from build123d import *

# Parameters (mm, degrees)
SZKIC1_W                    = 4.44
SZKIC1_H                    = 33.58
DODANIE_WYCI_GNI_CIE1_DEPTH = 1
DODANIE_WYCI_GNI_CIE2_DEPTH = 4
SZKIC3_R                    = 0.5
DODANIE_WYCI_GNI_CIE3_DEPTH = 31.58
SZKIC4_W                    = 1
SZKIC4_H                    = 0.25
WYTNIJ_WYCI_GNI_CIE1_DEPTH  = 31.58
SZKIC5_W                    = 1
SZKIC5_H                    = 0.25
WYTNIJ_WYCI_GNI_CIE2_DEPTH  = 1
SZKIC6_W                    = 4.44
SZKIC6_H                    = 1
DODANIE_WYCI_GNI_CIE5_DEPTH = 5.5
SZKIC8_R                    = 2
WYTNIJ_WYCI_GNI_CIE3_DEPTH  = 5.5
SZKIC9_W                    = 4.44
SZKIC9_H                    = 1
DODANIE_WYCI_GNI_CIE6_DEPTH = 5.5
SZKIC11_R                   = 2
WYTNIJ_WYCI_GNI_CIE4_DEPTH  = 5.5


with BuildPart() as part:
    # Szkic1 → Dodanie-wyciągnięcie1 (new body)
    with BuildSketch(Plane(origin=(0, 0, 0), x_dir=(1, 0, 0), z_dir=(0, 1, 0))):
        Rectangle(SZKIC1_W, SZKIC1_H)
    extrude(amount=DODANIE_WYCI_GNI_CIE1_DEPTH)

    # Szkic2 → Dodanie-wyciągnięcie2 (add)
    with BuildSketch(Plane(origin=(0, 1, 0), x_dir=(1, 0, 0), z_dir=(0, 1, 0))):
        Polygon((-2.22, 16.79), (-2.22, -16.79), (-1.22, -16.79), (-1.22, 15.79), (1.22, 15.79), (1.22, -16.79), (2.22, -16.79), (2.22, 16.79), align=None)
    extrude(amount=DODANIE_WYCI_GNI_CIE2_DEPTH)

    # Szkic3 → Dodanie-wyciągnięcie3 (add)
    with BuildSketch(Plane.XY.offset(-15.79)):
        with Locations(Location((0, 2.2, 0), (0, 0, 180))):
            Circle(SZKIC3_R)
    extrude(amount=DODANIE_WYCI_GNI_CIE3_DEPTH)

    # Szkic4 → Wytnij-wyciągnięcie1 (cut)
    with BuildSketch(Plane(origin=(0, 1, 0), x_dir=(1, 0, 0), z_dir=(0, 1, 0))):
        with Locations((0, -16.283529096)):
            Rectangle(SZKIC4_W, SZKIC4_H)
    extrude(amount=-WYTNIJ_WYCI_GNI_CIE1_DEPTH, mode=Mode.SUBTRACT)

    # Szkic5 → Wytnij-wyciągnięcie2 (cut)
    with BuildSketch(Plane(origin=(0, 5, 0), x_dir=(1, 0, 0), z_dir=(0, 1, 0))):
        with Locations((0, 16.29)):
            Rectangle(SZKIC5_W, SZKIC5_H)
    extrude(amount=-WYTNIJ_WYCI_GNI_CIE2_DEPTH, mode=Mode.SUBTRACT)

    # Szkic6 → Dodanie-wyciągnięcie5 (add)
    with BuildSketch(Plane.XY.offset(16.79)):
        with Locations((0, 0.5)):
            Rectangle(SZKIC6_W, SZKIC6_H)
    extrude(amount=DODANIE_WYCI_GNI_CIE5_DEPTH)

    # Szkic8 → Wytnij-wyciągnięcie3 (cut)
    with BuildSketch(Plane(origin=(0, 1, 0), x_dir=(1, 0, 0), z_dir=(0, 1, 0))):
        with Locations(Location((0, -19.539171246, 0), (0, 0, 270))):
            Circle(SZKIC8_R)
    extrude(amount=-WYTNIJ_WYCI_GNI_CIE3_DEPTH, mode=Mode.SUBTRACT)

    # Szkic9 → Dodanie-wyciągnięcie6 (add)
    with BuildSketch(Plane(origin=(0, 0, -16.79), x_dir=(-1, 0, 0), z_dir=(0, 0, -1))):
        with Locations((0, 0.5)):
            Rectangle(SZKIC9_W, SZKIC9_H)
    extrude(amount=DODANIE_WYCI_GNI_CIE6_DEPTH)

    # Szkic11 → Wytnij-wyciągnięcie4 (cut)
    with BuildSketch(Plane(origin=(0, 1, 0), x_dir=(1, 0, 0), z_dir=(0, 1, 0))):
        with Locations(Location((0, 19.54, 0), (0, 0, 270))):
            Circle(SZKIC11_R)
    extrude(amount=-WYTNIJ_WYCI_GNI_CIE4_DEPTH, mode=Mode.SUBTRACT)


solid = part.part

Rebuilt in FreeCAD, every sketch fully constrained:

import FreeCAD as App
import Part
import Sketcher
from FreeCAD import Vector
Q = App.Units.Quantity

doc = App.newDocument("Part")
body = doc.addObject("PartDesign::Body", "Body")

# Sketch on XZ plane
sketch1 = body.newObject("Sketcher::SketchObject", "Sketch")
sketch1.AttachmentSupport = (doc.getObject("XZ_Plane"), [""])
sketch1.MapMode = "FlatFace"
sketch1.addGeometry([
    Part.LineSegment(Vector(-2.2, -16.8, 0), Vector(-2.2, 16.8, 0)),
    Part.LineSegment(Vector(-2.2, 16.8, 0), Vector(2.2, 16.8, 0)),
    Part.LineSegment(Vector(2.2, 16.8, 0), Vector(2.2, -16.8, 0)),
    Part.LineSegment(Vector(2.2, -16.8, 0), Vector(-2.2, -16.8, 0)),
], False)
sketch1.addConstraint([
    Sketcher.Constraint("Coincident", 0, 2, 1, 1),
    Sketcher.Constraint("Coincident", 1, 2, 2, 1),
    Sketcher.Constraint("Coincident", 2, 2, 3, 1),
    Sketcher.Constraint("Coincident", 3, 2, 0, 1),
    Sketcher.Constraint("Vertical", 0),
    Sketcher.Constraint("Horizontal", 1),
    Sketcher.Constraint("Vertical", 2),
    Sketcher.Constraint("Horizontal", 3),
    Sketcher.Constraint("Symmetric", 0, 2, 2, 2, -1, 1),
    Sketcher.Constraint("DistanceX", 1, 1, 1, 2, Q("4.44 mm")),
    Sketcher.Constraint("DistanceY", 0, 1, 0, 2, Q("33.58 mm")),
])
pad1 = body.newObject("PartDesign::Pad", "Pad")
pad1.Profile = sketch1
pad1.Length = 1
pad1.Reversed = True

# Sketch on XZ plane
sketch2 = body.newObject("Sketcher::SketchObject", "Sketch001")
sketch2.AttachmentSupport = (doc.getObject("XZ_Plane"), [""])
sketch2.MapMode = "FlatFace"
sketch2.AttachmentOffset = App.Placement(Vector(0, 0, -1), App.Rotation())
sketch2.addGeometry([
    Part.LineSegment(Vector(-2.2, -16.8, 0), Vector(-2.2, 16.8, 0)),  # 0
    Part.LineSegment(Vector(-2.2, 16.8, 0), Vector(-1.2, 16.8, 0)),  # 1
    Part.LineSegment(Vector(-1.2, 16.8, 0), Vector(-1.2, -15.8, 0)),  # 2
    Part.LineSegment(Vector(-1.2, -15.8, 0), Vector(1.2, -15.8, 0)),  # 3
    Part.LineSegment(Vector(1.2, -15.8, 0), Vector(1.2, 16.8, 0)),  # 4
    Part.LineSegment(Vector(1.2, 16.8, 0), Vector(2.2, 16.8, 0)),  # 5
    Part.LineSegment(Vector(2.2, 16.8, 0), Vector(2.2, -16.8, 0)),  # 6
    Part.LineSegment(Vector(2.2, -16.8, 0), Vector(-2.2, -16.8, 0)),  # 7
], False)
sketch2.addConstraint([
    Sketcher.Constraint("Coincident", 0, 2, 1, 1),
    Sketcher.Constraint("Coincident", 1, 2, 2, 1),
    Sketcher.Constraint("Coincident", 2, 2, 3, 1),
    Sketcher.Constraint("Coincident", 3, 2, 4, 1),
    Sketcher.Constraint("Coincident", 4, 2, 5, 1),
    Sketcher.Constraint("Coincident", 5, 2, 6, 1),
    Sketcher.Constraint("Coincident", 6, 2, 7, 1),
    Sketcher.Constraint("Coincident", 7, 2, 0, 1),
    Sketcher.Constraint("Vertical", 0),
    Sketcher.Constraint("Horizontal", 1),
    Sketcher.Constraint("Vertical", 2),
    Sketcher.Constraint("Horizontal", 3),
    Sketcher.Constraint("Vertical", 4),
    Sketcher.Constraint("Horizontal", 5),
    Sketcher.Constraint("Vertical", 6),
    Sketcher.Constraint("Horizontal", 7),
    Sketcher.Constraint("Symmetric", 0, 2, 6, 2, -1, 1),
    Sketcher.Constraint("Symmetric", 1, 2, 4, 2, -2),
    Sketcher.Constraint("DistanceX", 1, 1, 1, 2, Q("1 mm")),
    Sketcher.Constraint("DistanceY", 6, 2, 3, 2, Q("1 mm")),
    Sketcher.Constraint("DistanceX", 3, 1, 3, 2, Q("2.44 mm")),
    Sketcher.Constraint("DistanceY", 0, 1, 0, 2, Q("33.58 mm")),
])
pad2 = body.newObject("PartDesign::Pad", "Pad001")
pad2.Profile = sketch2
pad2.Length = 4
pad2.Reversed = True

# Sketch on XY plane
sketch3 = body.newObject("Sketcher::SketchObject", "Sketch002")
sketch3.AttachmentSupport = (doc.getObject("XY_Plane"), [""])
sketch3.MapMode = "FlatFace"
sketch3.AttachmentOffset = App.Placement(Vector(0, 0, -15.79), App.Rotation())
sketch3.addGeometry(Part.Circle(Vector(0, 2.2, 0), Vector(0, 0, 1), 0.5), False)
sketch3.addConstraint([
    Sketcher.Constraint("PointOnObject", 0, 3, -2),
    Sketcher.Constraint("Diameter", 0, Q("1 mm")),
    Sketcher.Constraint("DistanceY", -1, 1, 0, 3, Q("2.2 mm")),
])
pad3 = body.newObject("PartDesign::Pad", "Pad002")
pad3.Profile = sketch3
pad3.Length = 31.58

# Sketch on XZ plane
sketch4 = body.newObject("Sketcher::SketchObject", "Sketch003")
sketch4.AttachmentSupport = (doc.getObject("XZ_Plane"), [""])
sketch4.MapMode = "FlatFace"
sketch4.AttachmentOffset = App.Placement(Vector(0, 0, -1), App.Rotation())
sketch4.addGeometry([
    Part.LineSegment(Vector(-0.5, 16.16, 0), Vector(-0.5, 16.41, 0)),
    Part.LineSegment(Vector(-0.5, 16.41, 0), Vector(0.5, 16.41, 0)),
    Part.LineSegment(Vector(0.5, 16.41, 0), Vector(0.5, 16.16, 0)),
    Part.LineSegment(Vector(0.5, 16.16, 0), Vector(-0.5, 16.16, 0)),
], False)
sketch4.addConstraint([
    Sketcher.Constraint("Coincident", 0, 2, 1, 1),
    Sketcher.Constraint("Coincident", 1, 2, 2, 1),
    Sketcher.Constraint("Coincident", 2, 2, 3, 1),
    Sketcher.Constraint("Coincident", 3, 2, 0, 1),
    Sketcher.Constraint("Vertical", 0),
    Sketcher.Constraint("Horizontal", 1),
    Sketcher.Constraint("Vertical", 2),
    Sketcher.Constraint("Horizontal", 3),
    Sketcher.Constraint("DistanceX", 1, 1, 1, 2, Q("1 mm")),
    Sketcher.Constraint("DistanceY", 0, 1, 0, 2, Q("0.25 mm")),
    Sketcher.Constraint("DistanceX", 0, 2, -1, 1, Q("0.5 mm")),
    Sketcher.Constraint("DistanceY", -1, 1, 0, 2, Q("16.408529 mm")),
])
pocket1 = body.newObject("PartDesign::Pocket", "Pocket")
pocket1.Profile = sketch4
pocket1.Length = 31.58
pocket1.Reversed = True

# Sketch on XZ plane
sketch5 = body.newObject("Sketcher::SketchObject", "Sketch004")
sketch5.AttachmentSupport = (doc.getObject("XZ_Plane"), [""])
sketch5.MapMode = "FlatFace"
sketch5.AttachmentOffset = App.Placement(Vector(0, 0, -5), App.Rotation())
sketch5.addGeometry([
    Part.LineSegment(Vector(-0.5, -16.41, 0), Vector(-0.5, -16.16, 0)),
    Part.LineSegment(Vector(-0.5, -16.16, 0), Vector(0.5, -16.16, 0)),
    Part.LineSegment(Vector(0.5, -16.16, 0), Vector(0.5, -16.41, 0)),
    Part.LineSegment(Vector(0.5, -16.41, 0), Vector(-0.5, -16.41, 0)),
], False)
sketch5.addConstraint([
    Sketcher.Constraint("Coincident", 0, 2, 1, 1),
    Sketcher.Constraint("Coincident", 1, 2, 2, 1),
    Sketcher.Constraint("Coincident", 2, 2, 3, 1),
    Sketcher.Constraint("Coincident", 3, 2, 0, 1),
    Sketcher.Constraint("Vertical", 0),
    Sketcher.Constraint("Horizontal", 1),
    Sketcher.Constraint("Vertical", 2),
    Sketcher.Constraint("Horizontal", 3),
    Sketcher.Constraint("DistanceX", 1, 1, 1, 2, Q("1 mm")),
    Sketcher.Constraint("DistanceY", 0, 1, 0, 2, Q("0.25 mm")),
    Sketcher.Constraint("DistanceX", 0, 2, -1, 1, Q("0.5 mm")),
    Sketcher.Constraint("DistanceY", 0, 2, -1, 1, Q("16.165 mm")),
])
pocket2 = body.newObject("PartDesign::Pocket", "Pocket001")
pocket2.Profile = sketch5
pocket2.Length = 1
pocket2.Reversed = True

# Sketch on XY plane
sketch6 = body.newObject("Sketcher::SketchObject", "Sketch005")
sketch6.AttachmentSupport = (doc.getObject("XY_Plane"), [""])
sketch6.MapMode = "FlatFace"
sketch6.AttachmentOffset = App.Placement(Vector(0, 0, 16.79), App.Rotation())
sketch6.addGeometry([
    Part.LineSegment(Vector(-2.2, 1, 0), Vector(-2.2, 0, 0)),
    Part.LineSegment(Vector(-2.2, 0, 0), Vector(2.2, 0, 0)),
    Part.LineSegment(Vector(2.2, 0, 0), Vector(2.2, 1, 0)),
    Part.LineSegment(Vector(2.2, 1, 0), Vector(-2.2, 1, 0)),
], False)
sketch6.addConstraint([
    Sketcher.Constraint("Coincident", 0, 2, 1, 1),
    Sketcher.Constraint("Coincident", 1, 2, 2, 1),
    Sketcher.Constraint("Coincident", 2, 2, 3, 1),
    Sketcher.Constraint("Coincident", 3, 2, 0, 1),
    Sketcher.Constraint("Vertical", 0),
    Sketcher.Constraint("Horizontal", 1),
    Sketcher.Constraint("Vertical", 2),
    Sketcher.Constraint("Horizontal", 3),
    Sketcher.Constraint("Symmetric", 0, 2, 1, 2, -1, 1),
    Sketcher.Constraint("DistanceY", 0, 2, 0, 1, Q("1 mm")),
    Sketcher.Constraint("DistanceX", 1, 1, 1, 2, Q("4.44 mm")),
])
pad4 = body.newObject("PartDesign::Pad", "Pad003")
pad4.Profile = sketch6
pad4.Length = 5.5

# Sketch on XZ plane
sketch7 = body.newObject("Sketcher::SketchObject", "Sketch006")
sketch7.AttachmentSupport = (doc.getObject("XZ_Plane"), [""])
sketch7.MapMode = "FlatFace"
sketch7.AttachmentOffset = App.Placement(Vector(0, 0, -1), App.Rotation())
sketch7.addGeometry(Part.Circle(Vector(0, 19.5, 0), Vector(0, 0, 1), 2), False)
sketch7.addConstraint([
    Sketcher.Constraint("PointOnObject", 0, 3, -2),
    Sketcher.Constraint("Diameter", 0, Q("4 mm")),
    Sketcher.Constraint("DistanceY", -1, 1, 0, 3, Q("19.539171 mm")),
])
pocket3 = body.newObject("PartDesign::Pocket", "Pocket002")
pocket3.Profile = sketch7
pocket3.Length = 5.5
pocket3.Reversed = True

# Sketch on XY plane
sketch8 = body.newObject("Sketcher::SketchObject", "Sketch007")
sketch8.AttachmentSupport = (doc.getObject("XY_Plane"), [""])
sketch8.MapMode = "FlatFace"
sketch8.AttachmentOffset = App.Placement(Vector(0, 0, -16.79), App.Rotation())
sketch8.addGeometry([
    Part.LineSegment(Vector(2.2, 1, 0), Vector(2.2, 0, 0)),
    Part.LineSegment(Vector(2.2, 0, 0), Vector(-2.2, 0, 0)),
    Part.LineSegment(Vector(-2.2, 0, 0), Vector(-2.2, 1, 0)),
    Part.LineSegment(Vector(-2.2, 1, 0), Vector(2.2, 1, 0)),
], False)
sketch8.addConstraint([
    Sketcher.Constraint("Coincident", 0, 2, 1, 1),
    Sketcher.Constraint("Coincident", 1, 2, 2, 1),
    Sketcher.Constraint("Coincident", 2, 2, 3, 1),
    Sketcher.Constraint("Coincident", 3, 2, 0, 1),
    Sketcher.Constraint("Vertical", 0),
    Sketcher.Constraint("Horizontal", 1),
    Sketcher.Constraint("Vertical", 2),
    Sketcher.Constraint("Horizontal", 3),
    Sketcher.Constraint("Symmetric", 0, 2, 1, 2, -1, 1),
    Sketcher.Constraint("DistanceY", 0, 2, 0, 1, Q("1 mm")),
    Sketcher.Constraint("DistanceX", 1, 2, 1, 1, Q("4.44 mm")),
])
pad5 = body.newObject("PartDesign::Pad", "Pad004")
pad5.Profile = sketch8
pad5.Length = 5.5
pad5.Reversed = True

# Sketch on XZ plane
sketch9 = body.newObject("Sketcher::SketchObject", "Sketch008")
sketch9.AttachmentSupport = (doc.getObject("XZ_Plane"), [""])
sketch9.MapMode = "FlatFace"
sketch9.AttachmentOffset = App.Placement(Vector(0, 0, -1), App.Rotation())
sketch9.addGeometry(Part.Circle(Vector(0, -19.5, 0), Vector(0, 0, 1), 2), False)
sketch9.addConstraint([
    Sketcher.Constraint("PointOnObject", 0, 3, -2),
    Sketcher.Constraint("Diameter", 0, Q("4 mm")),
    Sketcher.Constraint("DistanceY", 0, 3, -1, 1, Q("19.54 mm")),
])
pocket4 = body.newObject("PartDesign::Pocket", "Pocket003")
pocket4.Profile = sketch9
pocket4.Length = 5.5
pocket4.Reversed = True

doc.recompute()
